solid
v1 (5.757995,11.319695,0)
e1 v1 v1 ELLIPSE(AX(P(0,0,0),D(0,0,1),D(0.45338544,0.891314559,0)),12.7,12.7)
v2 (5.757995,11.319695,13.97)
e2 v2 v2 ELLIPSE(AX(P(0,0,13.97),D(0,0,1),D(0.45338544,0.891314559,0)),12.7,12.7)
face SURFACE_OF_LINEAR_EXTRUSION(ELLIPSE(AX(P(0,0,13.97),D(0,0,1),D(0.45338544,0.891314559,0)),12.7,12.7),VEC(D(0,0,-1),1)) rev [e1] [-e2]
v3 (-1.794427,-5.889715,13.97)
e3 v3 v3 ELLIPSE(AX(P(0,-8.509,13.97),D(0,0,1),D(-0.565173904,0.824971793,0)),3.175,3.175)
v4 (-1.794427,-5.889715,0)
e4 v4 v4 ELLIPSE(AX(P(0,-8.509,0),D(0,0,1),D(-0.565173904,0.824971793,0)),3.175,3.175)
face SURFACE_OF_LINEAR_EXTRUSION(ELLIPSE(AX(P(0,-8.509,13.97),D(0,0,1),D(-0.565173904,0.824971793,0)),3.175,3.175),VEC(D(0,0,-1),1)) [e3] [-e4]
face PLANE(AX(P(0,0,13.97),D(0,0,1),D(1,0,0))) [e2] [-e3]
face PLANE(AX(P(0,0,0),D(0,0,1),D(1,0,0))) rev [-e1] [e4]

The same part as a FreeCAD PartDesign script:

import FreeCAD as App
import Part
import Sketcher
from FreeCAD import Vector
Q = App.Units.Quantity

doc = App.newDocument("Part")
body = doc.addObject("PartDesign::Body", "Body")

# Sketch on XY plane
sketch1 = body.newObject("Sketcher::SketchObject", "Sketch")
sketch1.AttachmentSupport = (doc.getObject("XY_Plane"), [""])
sketch1.MapMode = "FlatFace"
sketch1.addGeometry([
    Part.Ellipse(Vector(5.757995, 11.319695, 0), Vector(-11.319695, 5.757995, 0), Vector(0, 0, 0)),
    Part.Ellipse(Vector(-1.794427, -5.889715, 0), Vector(-2.619285, -10.303427, 0), Vector(0, -8.509, 0)),
], False)
sketch1.addConstraint([
    Sketcher.Constraint("Block", 0),
    Sketcher.Constraint("Block", 1),
])
pad1 = body.newObject("PartDesign::Pad", "Pad")
pad1.Profile = sketch1
pad1.Length = Q("0.55 in")

doc.recompute()
